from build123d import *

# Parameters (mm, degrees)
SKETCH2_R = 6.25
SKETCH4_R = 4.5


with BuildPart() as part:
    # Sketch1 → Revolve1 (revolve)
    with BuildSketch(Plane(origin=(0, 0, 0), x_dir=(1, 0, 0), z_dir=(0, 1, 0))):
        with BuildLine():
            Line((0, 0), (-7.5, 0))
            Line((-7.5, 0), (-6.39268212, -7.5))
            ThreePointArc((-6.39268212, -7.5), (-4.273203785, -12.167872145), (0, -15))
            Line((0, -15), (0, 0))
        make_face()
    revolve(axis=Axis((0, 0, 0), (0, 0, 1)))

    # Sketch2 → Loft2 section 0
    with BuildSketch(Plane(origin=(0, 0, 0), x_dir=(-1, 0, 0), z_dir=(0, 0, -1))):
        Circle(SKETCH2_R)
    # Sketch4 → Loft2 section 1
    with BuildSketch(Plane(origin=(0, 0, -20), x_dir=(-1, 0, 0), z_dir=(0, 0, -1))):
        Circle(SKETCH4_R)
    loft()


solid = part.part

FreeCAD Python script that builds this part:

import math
import FreeCAD as App
import Part
import Sketcher
Q = App.Units.Quantity

doc = App.newDocument("Part")
body = doc.addObject("PartDesign::Body", "Body")

sketch1 = body.newObject("Sketcher::SketchObject", "Sketch")
sketch1.AttachmentSupport = (doc.getObject("XZ_Plane"), [""])
sketch1.MapMode = "FlatFace"
sketch1.addGeometry([
    Part.LineSegment(App.Vector(0, 0, 0), App.Vector(-8, 0, 0)),
    Part.LineSegment(App.Vector(-8, 0, 0), App.Vector(-6, 8, 0)),
    Part.ArcOfCircle(Part.Circle(App.Vector(3, 6, 0), App.Vector(0, 0, 1), 9), math.radians(108), math.radians(172)),
    Part.LineSegment(App.Vector(0, 15, 0), App.Vector(0, 0, 0)),
], False)
sketch1.addConstraint([
    Sketcher.Constraint("Coincident", 0, 2, 1, 1),
    Sketcher.Constraint("Tangent", 1, 2, 2, 2),
    Sketcher.Constraint("Coincident", 2, 1, 3, 1),
    Sketcher.Constraint("Coincident", 3, 2, 0, 1),
    Sketcher.Constraint("Horizontal", 0),
    Sketcher.Constraint("Vertical", 3),
    Sketcher.Constraint("Coincident", 3, 2, -1, 1),
    Sketcher.Constraint("DistanceY", 3, 2, 3, 1, Q("15 mm")),
    Sketcher.Constraint("DistanceX", 0, 2, 0, 1, Q("7.5 mm")),
    Sketcher.Constraint("DistanceY", -1, 1, 1, 2, Q("7.5 mm")),
    Sketcher.Constraint("Radius", 2, Q("9.286887 mm")),
])
revolution = body.newObject("PartDesign::Revolution", "Revolution")
revolution.Profile = sketch1
revolution.ReferenceAxis = (sketch1, ["V_Axis"])
revolution.Angle = 360

sketch2 = body.newObject("Sketcher::SketchObject", "Sketch001")
sketch2.AttachmentSupport = (doc.getObject("XY_Plane"), [""])
sketch2.MapMode = "FlatFace"
sketch2.addGeometry(Part.Circle(App.Vector(0, 0, 0), App.Vector(0, 0, 1), 6), False)
sketch2.addConstraint([
    Sketcher.Constraint("Coincident", 0, 3, -1, 1),
    Sketcher.Constraint("Diameter", 0, Q("12.5 mm")),
])

sketch3 = body.newObject("Sketcher::SketchObject", "Sketch002")
sketch3.AttachmentSupport = (doc.getObject("XY_Plane"), [""])
sketch3.MapMode = "FlatFace"
sketch3.AttachmentOffset = App.Placement(App.Vector(0, 0, -20), App.Rotation())
sketch3.addGeometry(Part.Circle(App.Vector(0, 0, 0), App.Vector(0, 0, 1), 4.5), False)
sketch3.addConstraint([
    Sketcher.Constraint("Coincident", 0, 3, -1, 1),
    Sketcher.Constraint("Diameter", 0, Q("9 mm")),
])

additiveloft = body.newObject("PartDesign::AdditiveLoft", "AdditiveLoft")
additiveloft.Profile = sketch2
additiveloft.Sections = [sketch3]

doc.recompute()
